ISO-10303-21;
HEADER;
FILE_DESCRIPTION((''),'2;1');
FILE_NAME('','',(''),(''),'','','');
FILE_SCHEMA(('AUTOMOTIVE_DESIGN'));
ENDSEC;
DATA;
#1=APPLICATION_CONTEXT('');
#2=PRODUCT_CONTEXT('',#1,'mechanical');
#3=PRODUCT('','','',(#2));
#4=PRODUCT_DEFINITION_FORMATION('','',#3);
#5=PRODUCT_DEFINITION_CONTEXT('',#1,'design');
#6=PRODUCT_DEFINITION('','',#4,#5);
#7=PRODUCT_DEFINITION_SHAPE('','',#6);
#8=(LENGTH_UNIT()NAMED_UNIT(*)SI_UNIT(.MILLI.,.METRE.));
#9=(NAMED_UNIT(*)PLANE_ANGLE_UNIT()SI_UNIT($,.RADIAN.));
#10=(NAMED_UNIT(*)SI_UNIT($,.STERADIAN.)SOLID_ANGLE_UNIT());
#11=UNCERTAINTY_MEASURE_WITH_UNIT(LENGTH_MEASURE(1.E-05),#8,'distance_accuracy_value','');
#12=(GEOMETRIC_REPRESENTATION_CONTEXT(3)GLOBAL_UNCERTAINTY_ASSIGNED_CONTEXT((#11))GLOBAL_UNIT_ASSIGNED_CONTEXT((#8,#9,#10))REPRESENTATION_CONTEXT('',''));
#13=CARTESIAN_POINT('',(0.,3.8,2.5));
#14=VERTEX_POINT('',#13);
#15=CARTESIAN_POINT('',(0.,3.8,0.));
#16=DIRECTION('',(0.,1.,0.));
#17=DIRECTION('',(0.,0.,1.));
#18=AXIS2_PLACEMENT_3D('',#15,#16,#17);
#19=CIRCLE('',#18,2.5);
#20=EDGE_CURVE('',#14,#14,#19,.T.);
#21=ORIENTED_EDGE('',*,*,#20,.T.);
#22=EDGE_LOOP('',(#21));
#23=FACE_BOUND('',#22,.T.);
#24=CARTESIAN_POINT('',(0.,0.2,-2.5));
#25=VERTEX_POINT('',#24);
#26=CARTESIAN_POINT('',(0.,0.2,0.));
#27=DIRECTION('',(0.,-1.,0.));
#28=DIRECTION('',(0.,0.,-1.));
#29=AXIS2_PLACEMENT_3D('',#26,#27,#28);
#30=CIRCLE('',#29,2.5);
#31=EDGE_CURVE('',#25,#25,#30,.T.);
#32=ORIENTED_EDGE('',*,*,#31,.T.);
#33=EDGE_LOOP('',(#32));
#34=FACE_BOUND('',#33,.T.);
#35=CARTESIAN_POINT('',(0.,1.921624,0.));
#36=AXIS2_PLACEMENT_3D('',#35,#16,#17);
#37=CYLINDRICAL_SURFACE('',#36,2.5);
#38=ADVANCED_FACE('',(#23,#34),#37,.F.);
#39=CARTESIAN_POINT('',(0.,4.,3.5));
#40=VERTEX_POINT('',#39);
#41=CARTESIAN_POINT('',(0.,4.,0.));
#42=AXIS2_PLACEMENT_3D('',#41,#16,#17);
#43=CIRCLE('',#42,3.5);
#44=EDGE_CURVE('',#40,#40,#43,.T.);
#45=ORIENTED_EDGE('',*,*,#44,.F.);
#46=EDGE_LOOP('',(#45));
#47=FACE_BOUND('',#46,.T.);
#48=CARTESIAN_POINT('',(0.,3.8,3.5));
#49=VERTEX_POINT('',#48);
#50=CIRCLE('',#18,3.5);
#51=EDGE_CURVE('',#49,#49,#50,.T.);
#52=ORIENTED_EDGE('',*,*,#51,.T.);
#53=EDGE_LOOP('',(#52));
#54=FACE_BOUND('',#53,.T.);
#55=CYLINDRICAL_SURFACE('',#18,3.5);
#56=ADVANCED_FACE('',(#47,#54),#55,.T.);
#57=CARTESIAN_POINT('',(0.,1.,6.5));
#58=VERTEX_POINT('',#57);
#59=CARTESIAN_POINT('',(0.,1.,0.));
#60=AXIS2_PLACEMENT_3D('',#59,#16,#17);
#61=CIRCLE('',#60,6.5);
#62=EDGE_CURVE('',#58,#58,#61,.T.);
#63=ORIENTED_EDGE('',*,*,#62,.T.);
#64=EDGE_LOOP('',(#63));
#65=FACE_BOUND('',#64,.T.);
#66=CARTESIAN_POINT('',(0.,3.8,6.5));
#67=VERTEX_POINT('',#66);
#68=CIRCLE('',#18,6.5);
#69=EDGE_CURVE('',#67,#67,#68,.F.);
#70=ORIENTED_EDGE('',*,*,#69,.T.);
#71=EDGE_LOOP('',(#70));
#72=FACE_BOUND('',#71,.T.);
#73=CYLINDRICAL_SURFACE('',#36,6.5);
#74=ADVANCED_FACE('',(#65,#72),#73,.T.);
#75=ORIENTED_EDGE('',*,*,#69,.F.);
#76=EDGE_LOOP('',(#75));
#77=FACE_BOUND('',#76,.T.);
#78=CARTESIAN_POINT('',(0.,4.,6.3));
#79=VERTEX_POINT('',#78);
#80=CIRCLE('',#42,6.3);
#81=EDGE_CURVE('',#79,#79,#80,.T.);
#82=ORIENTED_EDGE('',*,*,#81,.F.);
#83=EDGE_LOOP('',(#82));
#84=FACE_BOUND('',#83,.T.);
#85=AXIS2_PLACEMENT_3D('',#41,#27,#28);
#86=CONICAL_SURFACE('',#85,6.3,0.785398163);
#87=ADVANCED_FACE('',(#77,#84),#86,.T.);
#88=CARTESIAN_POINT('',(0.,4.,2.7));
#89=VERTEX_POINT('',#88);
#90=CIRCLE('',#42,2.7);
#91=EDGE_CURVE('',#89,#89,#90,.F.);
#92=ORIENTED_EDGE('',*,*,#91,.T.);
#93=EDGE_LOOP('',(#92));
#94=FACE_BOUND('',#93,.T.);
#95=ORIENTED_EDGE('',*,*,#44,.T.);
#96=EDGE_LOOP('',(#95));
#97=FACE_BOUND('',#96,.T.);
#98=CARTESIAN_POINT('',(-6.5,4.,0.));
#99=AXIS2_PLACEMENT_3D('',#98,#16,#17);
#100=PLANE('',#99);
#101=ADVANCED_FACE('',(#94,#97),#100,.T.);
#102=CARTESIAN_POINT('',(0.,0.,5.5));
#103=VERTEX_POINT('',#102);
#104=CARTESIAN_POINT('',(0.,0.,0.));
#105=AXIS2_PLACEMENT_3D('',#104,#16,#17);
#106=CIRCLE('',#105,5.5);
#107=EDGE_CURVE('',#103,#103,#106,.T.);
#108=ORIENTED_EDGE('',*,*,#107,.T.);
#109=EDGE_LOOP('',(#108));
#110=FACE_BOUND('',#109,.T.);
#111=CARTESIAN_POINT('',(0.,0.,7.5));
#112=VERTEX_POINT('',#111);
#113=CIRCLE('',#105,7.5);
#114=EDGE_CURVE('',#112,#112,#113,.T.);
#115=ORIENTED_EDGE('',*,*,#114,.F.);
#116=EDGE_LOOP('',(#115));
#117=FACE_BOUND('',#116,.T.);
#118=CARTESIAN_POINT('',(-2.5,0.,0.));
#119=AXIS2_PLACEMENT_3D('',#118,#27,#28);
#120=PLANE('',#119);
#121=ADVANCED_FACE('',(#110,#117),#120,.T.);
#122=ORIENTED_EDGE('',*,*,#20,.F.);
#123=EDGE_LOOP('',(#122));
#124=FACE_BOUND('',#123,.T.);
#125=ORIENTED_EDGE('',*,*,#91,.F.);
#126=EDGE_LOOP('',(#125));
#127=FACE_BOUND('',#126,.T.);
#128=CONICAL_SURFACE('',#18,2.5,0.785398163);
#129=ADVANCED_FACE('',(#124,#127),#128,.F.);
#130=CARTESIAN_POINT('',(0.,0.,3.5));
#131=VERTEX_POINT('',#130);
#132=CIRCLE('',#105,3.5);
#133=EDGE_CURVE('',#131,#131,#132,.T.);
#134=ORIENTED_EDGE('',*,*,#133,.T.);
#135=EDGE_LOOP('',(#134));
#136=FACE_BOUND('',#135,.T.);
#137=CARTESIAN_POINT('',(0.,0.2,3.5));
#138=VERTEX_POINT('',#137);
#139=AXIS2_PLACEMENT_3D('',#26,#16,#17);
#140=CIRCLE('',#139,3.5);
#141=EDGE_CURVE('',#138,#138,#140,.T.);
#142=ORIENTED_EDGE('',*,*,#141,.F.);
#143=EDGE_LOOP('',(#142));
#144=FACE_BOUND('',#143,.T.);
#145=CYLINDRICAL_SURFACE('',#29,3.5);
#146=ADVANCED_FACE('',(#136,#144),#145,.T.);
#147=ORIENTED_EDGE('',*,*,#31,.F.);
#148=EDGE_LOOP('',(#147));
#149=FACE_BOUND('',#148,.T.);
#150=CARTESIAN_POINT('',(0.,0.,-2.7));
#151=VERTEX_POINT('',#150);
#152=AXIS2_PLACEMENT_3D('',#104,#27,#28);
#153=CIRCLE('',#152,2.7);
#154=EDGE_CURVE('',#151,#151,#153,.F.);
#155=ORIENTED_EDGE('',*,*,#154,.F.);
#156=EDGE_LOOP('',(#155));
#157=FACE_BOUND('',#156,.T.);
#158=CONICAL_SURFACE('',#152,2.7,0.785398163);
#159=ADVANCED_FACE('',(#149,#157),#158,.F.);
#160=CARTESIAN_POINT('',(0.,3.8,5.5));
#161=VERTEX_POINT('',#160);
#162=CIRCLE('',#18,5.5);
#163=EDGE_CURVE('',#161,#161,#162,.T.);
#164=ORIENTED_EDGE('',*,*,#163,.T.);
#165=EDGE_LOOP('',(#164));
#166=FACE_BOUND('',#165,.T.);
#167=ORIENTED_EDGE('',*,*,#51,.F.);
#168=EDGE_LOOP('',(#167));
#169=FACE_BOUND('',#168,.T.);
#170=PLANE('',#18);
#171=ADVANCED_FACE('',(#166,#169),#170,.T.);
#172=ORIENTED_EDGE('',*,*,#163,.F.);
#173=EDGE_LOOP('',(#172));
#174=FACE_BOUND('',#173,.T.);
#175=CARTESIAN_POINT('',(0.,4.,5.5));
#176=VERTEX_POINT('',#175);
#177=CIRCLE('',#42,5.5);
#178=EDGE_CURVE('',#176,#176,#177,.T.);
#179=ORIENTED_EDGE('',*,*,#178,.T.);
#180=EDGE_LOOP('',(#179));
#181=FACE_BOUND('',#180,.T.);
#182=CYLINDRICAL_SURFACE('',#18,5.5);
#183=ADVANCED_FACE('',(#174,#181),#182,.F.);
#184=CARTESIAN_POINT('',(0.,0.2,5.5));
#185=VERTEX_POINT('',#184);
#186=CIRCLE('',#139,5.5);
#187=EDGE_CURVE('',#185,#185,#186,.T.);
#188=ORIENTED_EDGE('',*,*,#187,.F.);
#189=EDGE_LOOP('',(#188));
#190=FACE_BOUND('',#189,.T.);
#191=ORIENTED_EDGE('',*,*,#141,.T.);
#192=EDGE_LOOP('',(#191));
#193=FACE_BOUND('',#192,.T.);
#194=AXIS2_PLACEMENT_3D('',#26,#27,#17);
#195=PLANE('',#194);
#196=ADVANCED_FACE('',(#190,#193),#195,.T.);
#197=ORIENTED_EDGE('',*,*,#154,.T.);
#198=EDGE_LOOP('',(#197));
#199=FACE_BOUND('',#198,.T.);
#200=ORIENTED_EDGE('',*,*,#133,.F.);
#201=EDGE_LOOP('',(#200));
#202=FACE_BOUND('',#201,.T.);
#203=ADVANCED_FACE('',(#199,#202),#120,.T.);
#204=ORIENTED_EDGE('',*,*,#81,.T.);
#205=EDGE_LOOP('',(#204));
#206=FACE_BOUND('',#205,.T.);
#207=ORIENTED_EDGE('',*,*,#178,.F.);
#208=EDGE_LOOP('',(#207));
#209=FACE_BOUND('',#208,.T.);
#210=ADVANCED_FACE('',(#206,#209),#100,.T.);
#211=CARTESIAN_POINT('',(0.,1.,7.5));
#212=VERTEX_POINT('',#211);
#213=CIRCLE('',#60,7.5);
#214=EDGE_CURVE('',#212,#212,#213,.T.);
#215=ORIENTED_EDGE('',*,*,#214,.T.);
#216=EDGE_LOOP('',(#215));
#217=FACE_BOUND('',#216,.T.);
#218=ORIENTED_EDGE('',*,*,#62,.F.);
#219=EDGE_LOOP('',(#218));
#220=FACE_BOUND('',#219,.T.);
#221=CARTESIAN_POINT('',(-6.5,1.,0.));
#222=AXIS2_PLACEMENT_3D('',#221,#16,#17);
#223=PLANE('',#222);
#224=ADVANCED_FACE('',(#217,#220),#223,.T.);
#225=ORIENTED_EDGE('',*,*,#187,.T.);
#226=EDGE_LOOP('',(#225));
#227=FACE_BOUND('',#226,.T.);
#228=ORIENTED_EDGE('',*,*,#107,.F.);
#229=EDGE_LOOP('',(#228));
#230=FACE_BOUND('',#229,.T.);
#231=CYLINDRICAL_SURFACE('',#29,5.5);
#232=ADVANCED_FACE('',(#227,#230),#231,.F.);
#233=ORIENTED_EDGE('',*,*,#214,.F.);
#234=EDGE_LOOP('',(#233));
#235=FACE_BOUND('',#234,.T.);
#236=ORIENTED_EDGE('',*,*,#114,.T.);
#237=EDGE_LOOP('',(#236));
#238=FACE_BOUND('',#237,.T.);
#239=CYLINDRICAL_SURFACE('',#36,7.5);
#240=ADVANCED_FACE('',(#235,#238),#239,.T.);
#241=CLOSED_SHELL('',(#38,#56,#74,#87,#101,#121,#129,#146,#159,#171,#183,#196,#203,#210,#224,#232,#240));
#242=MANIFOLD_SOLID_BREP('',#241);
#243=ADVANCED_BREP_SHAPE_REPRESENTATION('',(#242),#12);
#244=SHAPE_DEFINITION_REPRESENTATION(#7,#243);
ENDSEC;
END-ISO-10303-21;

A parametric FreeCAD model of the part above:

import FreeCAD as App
import Part
import Sketcher


def edges_at(feature, points):
    """Names of the edges that pass closest to the given points."""
    edges = feature.Shape.Edges
    near = lambda p: min(range(len(edges)), key=lambda i: edges[i].distToShape(Part.Vertex(*p))[0])
    return sorted({f"Edge{near(p) + 1}" for p in points})


def add_polygon(sketch, points):
    """Adds a closed chain of lines whose ends are joined by coincident constraints."""
    first, n = sketch.GeometryCount, len(points)
    for a, b in zip(points, points[1:] + points[:1]):
        sketch.addGeometry(Part.LineSegment(App.Vector(*a, 0), App.Vector(*b, 0)), False)
    for i in range(n):
        sketch.addConstraint(Sketcher.Constraint("Coincident", first + i, 2, first + (i + 1) % n, 1))

doc = App.newDocument("Part")
body = doc.addObject("PartDesign::Body", "Body")

sketch1 = body.newObject("Sketcher::SketchObject", "Sketch")
sketch1.AttachmentSupport = (doc.getObject("XY_Plane"), [""])
sketch1.MapMode = "FlatFace"
add_polygon(sketch1, [(-2.5, 4), (-6.5, 4), (-6.5, 1), (-7.5, 1), (-7.5, 0), (-2.5, 0)])
sketch1.addConstraint([
    Sketcher.Constraint("Horizontal", 0),
    Sketcher.Constraint("Vertical", 1),
    Sketcher.Constraint("Horizontal", 2),
    Sketcher.Constraint("Vertical", 3),
    Sketcher.Constraint("Horizontal", 4),
    Sketcher.Constraint("Vertical", 5),
    Sketcher.Constraint("PointOnObject", 3, 2, -1),
    Sketcher.Constraint("Equal", 2, 3),
    Sketcher.Constraint("Equal", 0, 5),
    Sketcher.Constraint("DistanceX", 0, 2, 0, 1, 4.0),
    Sketcher.Constraint("DistanceX", 2, 2, 2, 1, 1.0),
    Sketcher.Constraint("DistanceX", 0, 2, -1, 1, 6.5),
])
revolution = body.newObject("PartDesign::Revolution", "Revolution")
revolution.Profile = sketch1
revolution.ReferenceAxis = (sketch1, ["V_Axis"])
revolution.Angle = 360

sketch2 = body.newObject("Sketcher::SketchObject", "Sketch001")
sketch2.AttachmentSupport = (doc.getObject("XZ_Plane"), [""])
sketch2.MapMode = "FlatFace"
sketch2.AttachmentOffset = App.Placement(App.Vector(0, 0, -4), App.Rotation())
sketch2.addGeometry([
    Part.Circle(App.Vector(0, 0, 0), App.Vector(0, 0, 1), 5.5),
    Part.Circle(App.Vector(0, 0, 0), App.Vector(0, 0, 1), 3.5),
], False)
sketch2.addConstraint([
    Sketcher.Constraint("Coincident", 0, 3, -1, 1),
    Sketcher.Constraint("Coincident", 1, 3, -1, 1),
    Sketcher.Constraint("Diameter", 0, 11.0),
    Sketcher.Constraint("Diameter", 1, 7.0),
])
pocket1 = body.newObject("PartDesign::Pocket", "Pocket")
pocket1.Profile = sketch2
pocket1.Length = 0.2
pocket1.Reversed = True
doc.recompute()

datumplane = body.newObject("PartDesign::Plane", "DatumPlane")
datumplane.AttachmentSupport = (doc.getObject("XZ_Plane"), [""])
datumplane.MapMode = "FlatFace"
datumplane.AttachmentOffset = App.Placement(App.Vector(0, 0, -2), App.Rotation())
mirrored = body.newObject("PartDesign::Mirrored", "Mirrored")
mirrored.Originals = [pocket1]
mirrored.MirrorPlane = (datumplane, [""])
body.Tip = mirrored
doc.recompute()

chamfer = body.newObject("PartDesign::Chamfer", "Chamfer")
chamfer.Base = (mirrored, edges_at(mirrored, [(2.5, 0, 0), (2.5, 4, 0), (6.5, 4, 0)]))
chamfer.Size = 0.2

doc.recompute()
